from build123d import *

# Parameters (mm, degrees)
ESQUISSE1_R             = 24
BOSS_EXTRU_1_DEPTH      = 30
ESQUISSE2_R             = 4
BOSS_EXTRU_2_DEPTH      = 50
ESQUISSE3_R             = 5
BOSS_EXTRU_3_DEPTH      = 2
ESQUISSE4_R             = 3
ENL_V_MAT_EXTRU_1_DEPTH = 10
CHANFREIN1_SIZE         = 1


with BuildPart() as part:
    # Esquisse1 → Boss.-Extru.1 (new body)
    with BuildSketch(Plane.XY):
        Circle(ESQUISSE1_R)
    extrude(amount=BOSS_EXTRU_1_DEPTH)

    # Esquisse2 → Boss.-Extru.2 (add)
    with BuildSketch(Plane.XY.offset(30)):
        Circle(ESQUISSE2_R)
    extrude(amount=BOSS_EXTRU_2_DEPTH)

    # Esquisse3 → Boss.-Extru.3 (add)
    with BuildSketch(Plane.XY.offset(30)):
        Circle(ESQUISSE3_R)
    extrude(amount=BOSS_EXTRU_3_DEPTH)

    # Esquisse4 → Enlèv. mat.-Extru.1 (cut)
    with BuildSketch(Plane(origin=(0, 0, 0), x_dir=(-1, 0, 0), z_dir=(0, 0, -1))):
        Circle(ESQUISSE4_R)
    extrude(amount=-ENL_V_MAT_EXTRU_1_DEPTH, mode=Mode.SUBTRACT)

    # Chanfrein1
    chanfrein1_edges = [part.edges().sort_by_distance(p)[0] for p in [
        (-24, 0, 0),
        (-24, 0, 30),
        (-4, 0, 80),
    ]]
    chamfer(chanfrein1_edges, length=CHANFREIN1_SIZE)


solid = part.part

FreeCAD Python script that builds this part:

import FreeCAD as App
import Part
import Sketcher
from FreeCAD import Vector


def edges_at(feature, points):
    """Names of the edges that pass closest to the given points."""
    edges = feature.Shape.Edges
    near = lambda p: min(range(len(edges)), key=lambda i: edges[i].distToShape(Part.Vertex(*p))[0])
    return sorted({f"Edge{near(p) + 1}" for p in points})

doc = App.newDocument("Part")
params = doc.addObject("Spreadsheet::Sheet", "Params")
for row, (alias, value) in enumerate([
    ("sketch1_diameter", "48 mm"),
    ("pad1_length", "30 mm"),
    ("sketch2_diameter", "8 mm"),
    ("pad2_length", "50 mm"),
    ("sketch3_diameter", "10 mm"),
    ("pad3_length", "2 mm"),
    ("sketch4_diameter", "6 mm"),
    ("pocket1_length", "10 mm"),
    ("chamfer_size", "1 mm"),
], start=1):
    params.set(f"A{row}", alias)
    params.set(f"B{row}", "=" + value)
    params.setAlias(f"B{row}", alias)

body = doc.addObject("PartDesign::Body", "Body")

sketch1 = body.newObject("Sketcher::SketchObject", "Sketch")
sketch1.AttachmentSupport = (doc.getObject("XY_Plane"), [""])
sketch1.MapMode = "FlatFace"
sketch1.addGeometry(Part.Circle(Vector(0, 0, 0), Vector(0, 0, 1), 24), False)
sketch1.addConstraint([
    Sketcher.Constraint("Coincident", 0, 3, -1, 1),
    Sketcher.Constraint("Diameter", 0, 48.0),
])
sketch1.setExpression("Constraints[1]", "Params.sketch1_diameter")
pad1 = body.newObject("PartDesign::Pad", "Pad")
pad1.Profile = sketch1
pad1.setExpression("Length", "Params.pad1_length")

sketch2 = body.newObject("Sketcher::SketchObject", "Sketch001")
sketch2.AttachmentSupport = (doc.getObject("XY_Plane"), [""])
sketch2.MapMode = "FlatFace"
sketch2.AttachmentOffset = App.Placement(Vector(0, 0, 30), App.Rotation())
sketch2.addGeometry(Part.Circle(Vector(0, 0, 0), Vector(0, 0, 1), 4), False)
sketch2.addConstraint([
    Sketcher.Constraint("Coincident", 0, 3, -1, 1),
    Sketcher.Constraint("Diameter", 0, 8.0),
])
sketch2.setExpression("Constraints[1]", "Params.sketch2_diameter")
pad2 = body.newObject("PartDesign::Pad", "Pad001")
pad2.Profile = sketch2
pad2.setExpression("Length", "Params.pad2_length")

sketch3 = body.newObject("Sketcher::SketchObject", "Sketch002")
sketch3.AttachmentSupport = (doc.getObject("XY_Plane"), [""])
sketch3.MapMode = "FlatFace"
sketch3.AttachmentOffset = App.Placement(Vector(0, 0, 30), App.Rotation())
sketch3.addGeometry(Part.Circle(Vector(0, 0, 0), Vector(0, 0, 1), 5), False)
sketch3.addConstraint([
    Sketcher.Constraint("Coincident", 0, 3, -1, 1),
    Sketcher.Constraint("Diameter", 0, 10.0),
])
sketch3.setExpression("Constraints[1]", "Params.sketch3_diameter")
pad3 = body.newObject("PartDesign::Pad", "Pad002")
pad3.Profile = sketch3
pad3.setExpression("Length", "Params.pad3_length")

sketch4 = body.newObject("Sketcher::SketchObject", "Sketch003")
sketch4.AttachmentSupport = (doc.getObject("XY_Plane"), [""])
sketch4.MapMode = "FlatFace"
sketch4.addGeometry(Part.Circle(Vector(0, 0, 0), Vector(0, 0, 1), 3), False)
sketch4.addConstraint([
    Sketcher.Constraint("Coincident", 0, 3, -1, 1),
    Sketcher.Constraint("Diameter", 0, 6.0),
])
sketch4.setExpression("Constraints[1]", "Params.sketch4_diameter")
pocket1 = body.newObject("PartDesign::Pocket", "Pocket")
pocket1.Profile = sketch4
pocket1.setExpression("Length", "Params.pocket1_length")
pocket1.Reversed = True
doc.recompute()

chamfer = body.newObject("PartDesign::Chamfer", "Chamfer")
chamfer.Base = (pocket1, edges_at(pocket1, [(-24, 0, 0), (-24, 0, 30), (-4, 0, 80)]))
chamfer.setExpression("Size", "Params.chamfer_size")

doc.recompute()
